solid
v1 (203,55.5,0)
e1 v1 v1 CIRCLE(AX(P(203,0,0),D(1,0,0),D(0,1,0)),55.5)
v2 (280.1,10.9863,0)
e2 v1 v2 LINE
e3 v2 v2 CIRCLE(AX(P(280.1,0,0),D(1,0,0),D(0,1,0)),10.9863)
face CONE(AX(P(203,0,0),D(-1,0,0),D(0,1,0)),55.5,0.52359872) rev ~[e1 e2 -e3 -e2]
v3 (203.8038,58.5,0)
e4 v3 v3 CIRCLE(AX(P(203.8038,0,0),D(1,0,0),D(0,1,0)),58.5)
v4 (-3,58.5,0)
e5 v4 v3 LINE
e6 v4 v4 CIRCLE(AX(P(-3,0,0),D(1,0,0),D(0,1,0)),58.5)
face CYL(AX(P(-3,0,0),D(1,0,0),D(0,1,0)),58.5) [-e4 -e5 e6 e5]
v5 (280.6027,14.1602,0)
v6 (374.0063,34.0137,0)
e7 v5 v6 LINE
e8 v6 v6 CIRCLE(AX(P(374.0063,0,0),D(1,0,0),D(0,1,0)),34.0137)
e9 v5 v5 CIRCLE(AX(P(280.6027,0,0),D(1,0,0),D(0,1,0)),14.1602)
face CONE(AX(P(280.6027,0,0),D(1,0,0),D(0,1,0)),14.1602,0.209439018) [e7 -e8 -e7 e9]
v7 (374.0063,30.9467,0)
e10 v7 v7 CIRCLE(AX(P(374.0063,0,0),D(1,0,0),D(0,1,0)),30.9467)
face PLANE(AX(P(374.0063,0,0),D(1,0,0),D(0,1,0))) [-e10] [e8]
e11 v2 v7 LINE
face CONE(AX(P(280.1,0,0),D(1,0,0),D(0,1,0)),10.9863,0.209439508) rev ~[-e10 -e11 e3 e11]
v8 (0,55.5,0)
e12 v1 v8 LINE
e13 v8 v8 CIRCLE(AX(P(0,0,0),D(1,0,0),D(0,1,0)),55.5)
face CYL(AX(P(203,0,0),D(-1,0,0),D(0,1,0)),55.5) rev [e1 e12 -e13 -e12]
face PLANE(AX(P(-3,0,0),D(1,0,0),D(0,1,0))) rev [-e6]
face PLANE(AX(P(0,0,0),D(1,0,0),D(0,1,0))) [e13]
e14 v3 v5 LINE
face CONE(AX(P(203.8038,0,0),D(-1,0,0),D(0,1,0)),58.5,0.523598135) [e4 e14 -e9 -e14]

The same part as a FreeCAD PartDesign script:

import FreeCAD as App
import Part
import Sketcher
from FreeCAD import Vector
Q = App.Units.Quantity

doc = App.newDocument("Part")
body = doc.addObject("PartDesign::Body", "Body")

sketch1 = body.newObject("Sketcher::SketchObject", "Sketch")
sketch1.AttachmentSupport = (doc.getObject("XY_Plane"), [""])
sketch1.MapMode = "FlatFace"
sketch1.addGeometry([
    Part.LineSegment(Vector(0, 55.5, 0), Vector(203, 55.5, 0)),
    Part.LineSegment(Vector(203, 55.5, 0), Vector(280.1, 11, 0)),
    Part.LineSegment(Vector(280.1, 11, 0), Vector(374, 30.9, 0)),
    Part.LineSegment(Vector(374, 30.9, 0), Vector(374, 34, 0)),
    Part.LineSegment(Vector(374, 34, 0), Vector(280.6, 14.2, 0)),
    Part.LineSegment(Vector(280.6, 14.2, 0), Vector(203.8, 58.5, 0)),
    Part.LineSegment(Vector(203.8, 58.5, 0), Vector(-3, 58.5, 0)),
    Part.LineSegment(Vector(-3, 58.5, 0), Vector(-3, 0, 0)),
    Part.LineSegment(Vector(-3, 0, 0), Vector(0, 0, 0)),
    Part.LineSegment(Vector(0, 0, 0), Vector(0, 55.5, 0)),
], False)
sketch1.addConstraint([
    Sketcher.Constraint("Coincident", 0, 2, 1, 1),
    Sketcher.Constraint("Coincident", 1, 2, 2, 1),
    Sketcher.Constraint("Coincident", 2, 2, 3, 1),
    Sketcher.Constraint("Coincident", 3, 2, 4, 1),
    Sketcher.Constraint("Coincident", 4, 2, 5, 1),
    Sketcher.Constraint("Coincident", 5, 2, 6, 1),
    Sketcher.Constraint("Coincident", 6, 2, 7, 1),
    Sketcher.Constraint("Coincident", 7, 2, 8, 1),
    Sketcher.Constraint("Coincident", 8, 2, 9, 1),
    Sketcher.Constraint("Coincident", 9, 2, 0, 1),
    Sketcher.Constraint("Horizontal", 0),
    Sketcher.Constraint("Vertical", 3),
    Sketcher.Constraint("Horizontal", 6),
    Sketcher.Constraint("Vertical", 7),
    Sketcher.Constraint("Horizontal", 8),
    Sketcher.Constraint("Vertical", 9),
    Sketcher.Constraint("Coincident", 8, 2, -1, 1),
    Sketcher.Constraint("Parallel", 2, 4),
    Sketcher.Constraint("Parallel", 1, 5),
    Sketcher.Constraint("DistanceX", 8, 1, 8, 2, Q("3 mm")),
    Sketcher.Constraint("DistanceY", 0, 2, 5, 2, Q("3 mm")),
    Sketcher.Constraint("DistanceX", 0, 1, 0, 2, Q("203 mm")),
    Sketcher.Constraint("Angle", 1, Q("-30 deg")),
    Sketcher.Constraint("Angle", 2, Q("12 deg")),
    Sketcher.Constraint("DistanceY", 7, 2, 7, 1, Q("58.5 mm")),
    Sketcher.Constraint("DistanceX", -1, 1, 1, 2, Q("280.1 mm")),
    Sketcher.Constraint("DistanceY", 3, 1, 3, 2, Q("3.067 mm")),
    Sketcher.Constraint("DistanceX", 6, 2, 6, 1, Q("206.8038 mm")),
    Sketcher.Constraint("Distance", 2, Q("96.0042 mm")),
])
revolution = body.newObject("PartDesign::Revolution", "Revolution")
revolution.Profile = sketch1
revolution.ReferenceAxis = (sketch1, ["H_Axis"])
revolution.Angle = 360

doc.recompute()
